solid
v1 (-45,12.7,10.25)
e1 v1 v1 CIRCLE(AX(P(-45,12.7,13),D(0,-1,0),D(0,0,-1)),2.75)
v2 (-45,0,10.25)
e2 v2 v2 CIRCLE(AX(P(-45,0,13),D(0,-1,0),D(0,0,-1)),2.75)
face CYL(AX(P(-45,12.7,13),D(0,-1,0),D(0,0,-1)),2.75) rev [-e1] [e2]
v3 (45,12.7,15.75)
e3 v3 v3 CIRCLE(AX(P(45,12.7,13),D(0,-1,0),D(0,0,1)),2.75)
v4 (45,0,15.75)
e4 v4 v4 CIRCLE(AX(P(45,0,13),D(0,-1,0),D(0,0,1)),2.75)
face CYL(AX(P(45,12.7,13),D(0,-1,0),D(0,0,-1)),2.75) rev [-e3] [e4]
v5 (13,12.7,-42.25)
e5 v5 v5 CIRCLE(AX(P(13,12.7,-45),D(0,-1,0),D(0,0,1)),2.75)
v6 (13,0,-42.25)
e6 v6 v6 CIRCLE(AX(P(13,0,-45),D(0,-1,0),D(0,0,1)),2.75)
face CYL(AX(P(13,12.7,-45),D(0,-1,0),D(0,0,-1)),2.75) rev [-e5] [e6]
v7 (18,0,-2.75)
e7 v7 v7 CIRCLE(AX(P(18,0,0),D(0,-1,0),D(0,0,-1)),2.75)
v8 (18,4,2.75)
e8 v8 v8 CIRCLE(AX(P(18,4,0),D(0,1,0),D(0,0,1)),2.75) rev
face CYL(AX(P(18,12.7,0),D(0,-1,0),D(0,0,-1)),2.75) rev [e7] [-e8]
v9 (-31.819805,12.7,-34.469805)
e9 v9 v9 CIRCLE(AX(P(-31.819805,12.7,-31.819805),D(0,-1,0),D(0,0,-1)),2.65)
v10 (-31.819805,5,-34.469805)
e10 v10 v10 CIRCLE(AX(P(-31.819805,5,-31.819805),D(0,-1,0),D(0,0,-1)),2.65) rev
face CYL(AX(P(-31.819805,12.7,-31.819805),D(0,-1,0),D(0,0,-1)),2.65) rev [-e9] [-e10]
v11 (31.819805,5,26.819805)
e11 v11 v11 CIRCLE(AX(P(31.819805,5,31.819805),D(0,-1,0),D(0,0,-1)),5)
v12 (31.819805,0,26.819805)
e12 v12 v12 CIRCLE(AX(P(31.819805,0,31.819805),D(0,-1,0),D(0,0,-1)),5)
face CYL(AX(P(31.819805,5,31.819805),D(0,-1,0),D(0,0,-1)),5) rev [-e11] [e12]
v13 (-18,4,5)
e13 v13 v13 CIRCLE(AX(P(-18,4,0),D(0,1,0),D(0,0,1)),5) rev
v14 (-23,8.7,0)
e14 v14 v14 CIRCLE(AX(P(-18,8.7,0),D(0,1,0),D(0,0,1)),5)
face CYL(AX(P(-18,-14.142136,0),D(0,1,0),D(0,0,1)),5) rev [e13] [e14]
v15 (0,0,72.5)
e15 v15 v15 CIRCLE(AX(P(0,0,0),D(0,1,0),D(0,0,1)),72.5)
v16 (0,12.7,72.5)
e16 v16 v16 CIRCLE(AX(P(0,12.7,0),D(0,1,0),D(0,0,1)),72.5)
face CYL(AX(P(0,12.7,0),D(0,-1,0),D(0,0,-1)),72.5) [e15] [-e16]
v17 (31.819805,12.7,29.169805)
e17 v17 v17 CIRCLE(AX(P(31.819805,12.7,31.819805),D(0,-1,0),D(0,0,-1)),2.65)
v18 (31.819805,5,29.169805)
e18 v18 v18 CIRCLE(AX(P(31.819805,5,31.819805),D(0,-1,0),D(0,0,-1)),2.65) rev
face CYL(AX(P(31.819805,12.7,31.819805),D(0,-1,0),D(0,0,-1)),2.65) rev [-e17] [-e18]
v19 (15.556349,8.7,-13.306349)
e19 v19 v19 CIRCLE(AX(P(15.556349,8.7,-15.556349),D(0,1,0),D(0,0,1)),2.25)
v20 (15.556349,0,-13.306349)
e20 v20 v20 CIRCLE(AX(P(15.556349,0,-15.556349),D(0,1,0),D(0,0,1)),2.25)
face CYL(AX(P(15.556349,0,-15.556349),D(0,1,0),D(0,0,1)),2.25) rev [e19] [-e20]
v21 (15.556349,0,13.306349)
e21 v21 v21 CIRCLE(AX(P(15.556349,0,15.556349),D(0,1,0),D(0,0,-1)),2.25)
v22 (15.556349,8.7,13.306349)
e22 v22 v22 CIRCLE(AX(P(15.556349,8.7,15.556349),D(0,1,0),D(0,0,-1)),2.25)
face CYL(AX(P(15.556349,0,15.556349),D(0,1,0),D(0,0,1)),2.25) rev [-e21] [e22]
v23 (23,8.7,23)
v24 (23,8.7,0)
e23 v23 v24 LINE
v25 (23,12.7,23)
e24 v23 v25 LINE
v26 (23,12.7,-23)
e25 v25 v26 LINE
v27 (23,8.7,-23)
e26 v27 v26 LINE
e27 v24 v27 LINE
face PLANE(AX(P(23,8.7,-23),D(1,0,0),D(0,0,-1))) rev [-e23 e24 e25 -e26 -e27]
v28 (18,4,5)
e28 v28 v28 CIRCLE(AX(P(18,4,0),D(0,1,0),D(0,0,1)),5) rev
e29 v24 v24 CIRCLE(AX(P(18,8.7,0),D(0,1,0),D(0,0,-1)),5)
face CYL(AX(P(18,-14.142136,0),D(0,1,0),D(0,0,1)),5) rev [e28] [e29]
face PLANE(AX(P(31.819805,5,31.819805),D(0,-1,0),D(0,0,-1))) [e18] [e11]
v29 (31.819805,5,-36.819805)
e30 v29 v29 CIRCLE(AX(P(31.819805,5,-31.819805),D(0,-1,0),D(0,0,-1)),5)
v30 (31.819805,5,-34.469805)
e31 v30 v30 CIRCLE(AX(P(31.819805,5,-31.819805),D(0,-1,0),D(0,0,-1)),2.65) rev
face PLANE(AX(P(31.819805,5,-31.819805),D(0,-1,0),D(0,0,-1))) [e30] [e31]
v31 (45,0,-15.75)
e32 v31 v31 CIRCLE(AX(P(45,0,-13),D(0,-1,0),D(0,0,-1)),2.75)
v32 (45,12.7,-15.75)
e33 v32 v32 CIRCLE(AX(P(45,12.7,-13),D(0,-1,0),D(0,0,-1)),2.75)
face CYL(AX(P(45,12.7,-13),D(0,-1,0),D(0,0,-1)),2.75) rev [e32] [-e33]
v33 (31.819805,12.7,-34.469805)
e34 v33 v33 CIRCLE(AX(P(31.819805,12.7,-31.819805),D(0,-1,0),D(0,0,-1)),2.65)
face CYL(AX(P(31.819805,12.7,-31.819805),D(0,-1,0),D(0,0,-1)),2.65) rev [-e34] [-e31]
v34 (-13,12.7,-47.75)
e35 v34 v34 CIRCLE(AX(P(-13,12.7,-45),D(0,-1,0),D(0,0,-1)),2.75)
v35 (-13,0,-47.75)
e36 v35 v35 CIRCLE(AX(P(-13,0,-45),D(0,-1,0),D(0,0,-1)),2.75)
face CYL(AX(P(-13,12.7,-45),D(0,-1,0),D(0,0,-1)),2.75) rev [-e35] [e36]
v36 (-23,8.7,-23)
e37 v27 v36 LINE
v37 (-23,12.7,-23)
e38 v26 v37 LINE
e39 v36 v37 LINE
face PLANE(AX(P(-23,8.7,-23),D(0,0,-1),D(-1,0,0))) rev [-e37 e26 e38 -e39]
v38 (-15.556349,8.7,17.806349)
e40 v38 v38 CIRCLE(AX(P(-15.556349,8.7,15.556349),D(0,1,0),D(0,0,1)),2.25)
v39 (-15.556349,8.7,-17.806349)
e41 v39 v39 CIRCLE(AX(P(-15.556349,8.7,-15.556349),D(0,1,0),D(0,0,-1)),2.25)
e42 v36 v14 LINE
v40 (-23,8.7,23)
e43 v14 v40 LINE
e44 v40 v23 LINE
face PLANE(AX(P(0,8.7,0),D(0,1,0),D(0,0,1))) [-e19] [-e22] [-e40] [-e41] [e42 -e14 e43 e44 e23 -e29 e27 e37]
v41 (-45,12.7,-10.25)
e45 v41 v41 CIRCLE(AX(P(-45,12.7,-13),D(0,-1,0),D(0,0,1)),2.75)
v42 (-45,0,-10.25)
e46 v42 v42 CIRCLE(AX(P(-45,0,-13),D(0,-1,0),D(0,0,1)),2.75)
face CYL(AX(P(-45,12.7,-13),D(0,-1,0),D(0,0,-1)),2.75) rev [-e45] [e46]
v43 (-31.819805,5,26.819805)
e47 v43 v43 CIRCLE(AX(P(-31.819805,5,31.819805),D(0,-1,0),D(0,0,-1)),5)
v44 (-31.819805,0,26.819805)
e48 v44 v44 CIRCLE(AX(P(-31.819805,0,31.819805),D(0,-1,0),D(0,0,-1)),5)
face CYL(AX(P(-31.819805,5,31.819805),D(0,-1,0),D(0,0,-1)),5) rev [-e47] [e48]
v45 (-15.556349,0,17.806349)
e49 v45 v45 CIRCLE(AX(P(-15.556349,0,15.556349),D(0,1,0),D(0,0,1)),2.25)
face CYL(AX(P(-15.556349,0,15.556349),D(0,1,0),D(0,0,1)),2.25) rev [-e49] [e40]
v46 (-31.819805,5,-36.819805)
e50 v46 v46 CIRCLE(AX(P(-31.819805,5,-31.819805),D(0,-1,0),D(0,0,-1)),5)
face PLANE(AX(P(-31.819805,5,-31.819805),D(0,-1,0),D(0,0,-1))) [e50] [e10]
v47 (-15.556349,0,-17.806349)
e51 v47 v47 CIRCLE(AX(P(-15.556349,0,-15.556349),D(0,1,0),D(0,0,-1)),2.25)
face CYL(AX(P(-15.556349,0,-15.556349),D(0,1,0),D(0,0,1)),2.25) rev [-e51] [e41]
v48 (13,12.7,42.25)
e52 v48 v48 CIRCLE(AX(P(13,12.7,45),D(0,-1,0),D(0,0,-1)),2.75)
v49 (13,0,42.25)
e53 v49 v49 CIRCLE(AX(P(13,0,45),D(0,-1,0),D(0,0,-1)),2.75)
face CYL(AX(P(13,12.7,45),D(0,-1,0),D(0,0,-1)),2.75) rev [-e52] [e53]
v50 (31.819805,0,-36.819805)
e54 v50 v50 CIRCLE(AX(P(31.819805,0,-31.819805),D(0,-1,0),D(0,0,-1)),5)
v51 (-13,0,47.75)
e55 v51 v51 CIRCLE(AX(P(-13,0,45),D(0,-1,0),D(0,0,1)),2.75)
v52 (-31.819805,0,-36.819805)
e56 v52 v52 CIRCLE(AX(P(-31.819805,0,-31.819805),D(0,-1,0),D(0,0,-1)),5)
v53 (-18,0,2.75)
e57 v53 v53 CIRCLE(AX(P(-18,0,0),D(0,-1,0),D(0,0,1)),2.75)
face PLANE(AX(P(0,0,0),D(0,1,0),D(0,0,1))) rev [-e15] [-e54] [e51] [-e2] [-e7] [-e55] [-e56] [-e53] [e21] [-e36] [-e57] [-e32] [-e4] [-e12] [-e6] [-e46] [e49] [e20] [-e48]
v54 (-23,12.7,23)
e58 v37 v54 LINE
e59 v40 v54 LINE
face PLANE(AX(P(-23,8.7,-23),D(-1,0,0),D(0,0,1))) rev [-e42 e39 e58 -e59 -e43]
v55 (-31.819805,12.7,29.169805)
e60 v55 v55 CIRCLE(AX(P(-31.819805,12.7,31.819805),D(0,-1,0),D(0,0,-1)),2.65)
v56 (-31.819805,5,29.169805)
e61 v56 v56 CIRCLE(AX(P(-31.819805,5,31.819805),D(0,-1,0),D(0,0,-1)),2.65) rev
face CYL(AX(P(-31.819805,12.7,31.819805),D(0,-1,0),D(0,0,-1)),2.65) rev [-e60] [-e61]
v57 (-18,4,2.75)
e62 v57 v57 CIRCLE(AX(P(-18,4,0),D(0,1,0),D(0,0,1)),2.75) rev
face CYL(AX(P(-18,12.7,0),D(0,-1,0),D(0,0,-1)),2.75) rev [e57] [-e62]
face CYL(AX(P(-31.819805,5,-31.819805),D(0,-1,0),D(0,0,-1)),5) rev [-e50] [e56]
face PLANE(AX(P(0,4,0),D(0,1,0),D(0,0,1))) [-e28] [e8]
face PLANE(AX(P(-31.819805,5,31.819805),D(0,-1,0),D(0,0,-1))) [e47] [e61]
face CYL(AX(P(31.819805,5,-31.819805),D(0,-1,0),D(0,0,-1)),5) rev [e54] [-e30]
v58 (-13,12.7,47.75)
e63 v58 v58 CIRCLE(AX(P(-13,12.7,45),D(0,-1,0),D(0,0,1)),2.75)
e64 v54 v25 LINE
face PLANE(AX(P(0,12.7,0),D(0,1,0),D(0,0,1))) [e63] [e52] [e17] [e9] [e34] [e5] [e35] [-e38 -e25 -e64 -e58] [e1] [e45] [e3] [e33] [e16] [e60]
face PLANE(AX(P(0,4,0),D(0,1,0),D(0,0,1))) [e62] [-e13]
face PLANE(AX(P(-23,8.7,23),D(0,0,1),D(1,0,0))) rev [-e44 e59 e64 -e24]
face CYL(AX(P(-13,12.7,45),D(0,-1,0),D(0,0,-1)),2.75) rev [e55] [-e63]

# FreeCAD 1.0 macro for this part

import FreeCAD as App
import Part
import Sketcher

V = App.Vector
Q = App.Units.Quantity


def add_polygon(sketch, points):
    """Adds a closed chain of lines whose ends are joined by coincident constraints."""
    first, n = sketch.GeometryCount, len(points)
    for a, b in zip(points, points[1:] + points[:1]):
        sketch.addGeometry(Part.LineSegment(App.Vector(*a, 0), App.Vector(*b, 0)), False)
    for i in range(n):
        sketch.addConstraint(Sketcher.Constraint("Coincident", first + i, 2, first + (i + 1) % n, 1))

doc = App.newDocument("Part")
body = doc.addObject("PartDesign::Body", "Body")

# Sketch on XZ plane
sketch1 = body.newObject("Sketcher::SketchObject", "Sketch")
sketch1.AttachmentSupport = (doc.getObject("XZ_Plane"), [""])
sketch1.MapMode = "FlatFace"
sketch1.addGeometry(Part.Circle(V(0, 0, 0), V(0, 0, 1), 72), False)
sketch1.addConstraint([
    Sketcher.Constraint("Coincident", 0, 3, -1, 1),
    Sketcher.Constraint("Diameter", 0, Q("145 mm")),
])
pad1 = body.newObject("PartDesign::Pad", "Pad")
pad1.Profile = sketch1
pad1.Length = 12.7
pad1.Reversed = True

# Sketch on XZ plane
sketch2 = body.newObject("Sketcher::SketchObject", "Sketch001")
sketch2.AttachmentSupport = (doc.getObject("XZ_Plane"), [""])
sketch2.MapMode = "FlatFace"
sketch2.addGeometry([
    Part.Circle(V(31.8, 31.8, 0), V(0, 0, 1), 2.6),
    Part.Circle(V(31.8, -31.8, 0), V(0, 0, 1), 2.6),
    Part.Circle(V(-31.8, -31.8, 0), V(0, 0, 1), 2.6),
    Part.Circle(V(-31.8, 31.8, 0), V(0, 0, 1), 2.6),
], False)
sketch2.addConstraint([
    Sketcher.Constraint("Equal", 0, 1),
    Sketcher.Constraint("Equal", 1, 2),
    Sketcher.Constraint("Equal", 2, 3),
    Sketcher.Constraint("Symmetric", 0, 3, 2, 3, -1, 1),
    Sketcher.Constraint("Symmetric", 1, 3, 3, 3, -1, 1),
    Sketcher.Constraint("Symmetric", 1, 3, 2, 3, -2),
    Sketcher.Constraint("Diameter", 0, Q("5.3 mm")),
    Sketcher.Constraint("DistanceY", 1, 3, 0, 3, Q("63.63961 mm")),
    Sketcher.Constraint("DistanceX", 2, 3, 1, 3, Q("63.63961 mm")),
])
pocket1 = body.newObject("PartDesign::Pocket", "Pocket")
pocket1.Profile = sketch2
pocket1.Type = "ThroughAll"

# Sketch on XZ plane
sketch3 = body.newObject("Sketcher::SketchObject", "Sketch002")
sketch3.AttachmentSupport = (doc.getObject("XZ_Plane"), [""])
sketch3.MapMode = "FlatFace"
sketch3.addGeometry([
    Part.Circle(V(-32, 32, 0), V(0, 0, 1), 5),
    Part.Circle(V(32, 32, 0), V(0, 0, 1), 5),
    Part.Circle(V(32, -32, 0), V(0, 0, 1), 5),
    Part.Circle(V(-32, -32, 0), V(0, 0, 1), 5),
], False)
sketch3.addConstraint([
    Sketcher.Constraint("Equal", 0, 1),
    Sketcher.Constraint("Equal", 1, 2),
    Sketcher.Constraint("Equal", 2, 3),
    Sketcher.Constraint("Symmetric", 0, 3, 2, 3, -1, 1),
    Sketcher.Constraint("Symmetric", 1, 3, 3, 3, -1, 1),
    Sketcher.Constraint("Symmetric", 0, 3, 1, 3, -2),
    Sketcher.Constraint("Diameter", 0, Q("10 mm")),
    Sketcher.Constraint("DistanceX", 0, 3, 1, 3, Q("63.63961 mm")),
    Sketcher.Constraint("DistanceY", 2, 3, 1, 3, Q("63.63961 mm")),
])
pocket2 = body.newObject("PartDesign::Pocket", "Pocket001")
pocket2.Profile = sketch3
pocket2.Length = 5

# Sketch on XZ plane
sketch4 = body.newObject("Sketcher::SketchObject", "Sketch003")
sketch4.AttachmentSupport = (doc.getObject("XZ_Plane"), [""])
sketch4.MapMode = "FlatFace"
sketch4.addGeometry([
    Part.Circle(V(13, 45, 0), V(0, 0, 1), 2.8),  # 0
    Part.Circle(V(-13, 45, 0), V(0, 0, 1), 2.8),  # 1
    Part.Circle(V(45, -13, 0), V(0, 0, 1), 2.8),  # 2
    Part.Circle(V(45, 13, 0), V(0, 0, 1), 2.8),  # 3
    Part.Circle(V(-13, -45, 0), V(0, 0, 1), 2.8),  # 4
    Part.Circle(V(13, -45, 0), V(0, 0, 1), 2.8),  # 5
    Part.Circle(V(-45, 13, 0), V(0, 0, 1), 2.8),  # 6
    Part.Circle(V(-45, -13, 0), V(0, 0, 1), 2.8),  # 7
], False)
sketch4.addConstraint([
    Sketcher.Constraint("Equal", 0, 1),
    Sketcher.Constraint("Equal", 1, 2),
    Sketcher.Constraint("Equal", 2, 3),
    Sketcher.Constraint("Equal", 3, 4),
    Sketcher.Constraint("Equal", 4, 5),
    Sketcher.Constraint("Equal", 5, 6),
    Sketcher.Constraint("Equal", 6, 7),
    Sketcher.Constraint("Symmetric", 0, 3, 4, 3, -1, 1),
    Sketcher.Constraint("Symmetric", 1, 3, 5, 3, -1, 1),
    Sketcher.Constraint("Symmetric", 2, 3, 6, 3, -1, 1),
    Sketcher.Constraint("Symmetric", 3, 3, 7, 3, -1, 1),
    Sketcher.Constraint("Symmetric", 0, 3, 1, 3, -2),
    Sketcher.Constraint("Symmetric", 3, 3, 6, 3, -2),
    Sketcher.Constraint("Diameter", 0, Q("5.5 mm")),
    Sketcher.Constraint("DistanceX", -1, 1, 0, 3, Q("13 mm")),
    Sketcher.Constraint("DistanceY", -1, 1, 0, 3, Q("45 mm")),
    Sketcher.Constraint("DistanceX", -1, 1, 2, 3, Q("45 mm")),
    Sketcher.Constraint("DistanceY", 2, 3, -1, 1, Q("13 mm")),
])
pocket3 = body.newObject("PartDesign::Pocket", "Pocket002")
pocket3.Profile = sketch4
pocket3.Type = "ThroughAll"

# Sketch on XZ plane
sketch5 = body.newObject("Sketcher::SketchObject", "Sketch004")
sketch5.AttachmentSupport = (doc.getObject("XZ_Plane"), [""])
sketch5.MapMode = "FlatFace"
sketch5.AttachmentOffset = App.Placement(V(0, 0, -12.7), App.Rotation())
add_polygon(sketch5, [(-23, -23), (-23, 23), (23, 23), (23, -23)])  # lines 0-3
sketch5.addConstraint([
    Sketcher.Constraint("Vertical", 0),
    Sketcher.Constraint("Horizontal", 1),
    Sketcher.Constraint("Vertical", 2),
    Sketcher.Constraint("Horizontal", 3),
    Sketcher.Constraint("Symmetric", 0, 2, 2, 2, -1, 1),
    Sketcher.Constraint("Equal", 3, 0),
    Sketcher.Constraint("DistanceX", 1, 1, 1, 2, Q("46 mm")),
])
pocket4 = body.newObject("PartDesign::Pocket", "Pocket003")
pocket4.Profile = sketch5
pocket4.Length = 4
pocket4.Reversed = True

# Sketch on XZ plane
sketch6 = body.newObject("Sketcher::SketchObject", "Sketch005")
sketch6.AttachmentSupport = (doc.getObject("XZ_Plane"), [""])
sketch6.MapMode = "FlatFace"
sketch6.AttachmentOffset = App.Placement(V(0, 0, -8.7), App.Rotation())
sketch6.addGeometry([
    Part.Circle(V(15.6, -15.6, 0), V(0, 0, 1), 2.2),
    Part.Circle(V(-15.6, -15.6, 0), V(0, 0, 1), 2.2),
    Part.Circle(V(15.6, 15.6, 0), V(0, 0, 1), 2.2),
    Part.Circle(V(-15.6, 15.6, 0), V(0, 0, 1), 2.2),
], False)
sketch6.addConstraint([
    Sketcher.Constraint("Equal", 0, 1),
    Sketcher.Constraint("Equal", 1, 2),
    Sketcher.Constraint("Equal", 2, 3),
    Sketcher.Constraint("Symmetric", 1, 3, 2, 3, -1, 1),
    Sketcher.Constraint("Symmetric", 0, 3, 3, 3, -1, 1),
    Sketcher.Constraint("Symmetric", 0, 3, 1, 3, -2),
    Sketcher.Constraint("Diameter", 0, Q("4.5 mm")),
    Sketcher.Constraint("DistanceX", 1, 3, 0, 3, Q("31.112698 mm")),
    Sketcher.Constraint("DistanceY", 0, 3, 2, 3, Q("31.112698 mm")),
])
pocket5 = body.newObject("PartDesign::Pocket", "Pocket004")
pocket5.Profile = sketch6
pocket5.Type = "ThroughAll"
pocket5.Reversed = True

# Sketch on XZ plane
sketch7 = body.newObject("Sketcher::SketchObject", "Sketch006")
sketch7.AttachmentSupport = (doc.getObject("XZ_Plane"), [""])
sketch7.MapMode = "FlatFace"
sketch7.addGeometry([
    Part.Circle(V(18, 0, 0), V(0, 0, 1), 2.8),
    Part.Circle(V(-18, 0, 0), V(0, 0, 1), 2.8),
], False)
sketch7.addConstraint([
    Sketcher.Constraint("Equal", 0, 1),
    Sketcher.Constraint("Symmetric", 0, 3, 1, 3, -1, 1),
    Sketcher.Constraint("PointOnObject", 0, 3, -1),
    Sketcher.Constraint("Diameter", 0, Q("5.5 mm")),
    Sketcher.Constraint("DistanceX", -1, 1, 0, 3, Q("18 mm")),
])
pocket6 = body.newObject("PartDesign::Pocket", "Pocket005")
pocket6.Profile = sketch7
pocket6.Type = "ThroughAll"

# Sketch on XZ plane
sketch8 = body.newObject("Sketcher::SketchObject", "Sketch007")
sketch8.AttachmentSupport = (doc.getObject("XZ_Plane"), [""])
sketch8.MapMode = "FlatFace"
sketch8.AttachmentOffset = App.Placement(V(0, 0, -8.7), App.Rotation())
sketch8.addGeometry([
    Part.Circle(V(-18, 0, 0), V(0, 0, 1), 5),
    Part.Circle(V(18, 0, 0), V(0, 0, 1), 5),
], False)
sketch8.addConstraint([
    Sketcher.Constraint("Equal", 0, 1),
    Sketcher.Constraint("Symmetric", 0, 3, 1, 3, -1, 1),
    Sketcher.Constraint("PointOnObject", 0, 3, -1),
    Sketcher.Constraint("Diameter", 0, Q("10 mm")),
    Sketcher.Constraint("DistanceX", 0, 3, -1, 1, Q("18 mm")),
])
pocket7 = body.newObject("PartDesign::Pocket", "Pocket006")
pocket7.Profile = sketch8
pocket7.Length = 4.7
pocket7.Reversed = True

doc.recompute()
